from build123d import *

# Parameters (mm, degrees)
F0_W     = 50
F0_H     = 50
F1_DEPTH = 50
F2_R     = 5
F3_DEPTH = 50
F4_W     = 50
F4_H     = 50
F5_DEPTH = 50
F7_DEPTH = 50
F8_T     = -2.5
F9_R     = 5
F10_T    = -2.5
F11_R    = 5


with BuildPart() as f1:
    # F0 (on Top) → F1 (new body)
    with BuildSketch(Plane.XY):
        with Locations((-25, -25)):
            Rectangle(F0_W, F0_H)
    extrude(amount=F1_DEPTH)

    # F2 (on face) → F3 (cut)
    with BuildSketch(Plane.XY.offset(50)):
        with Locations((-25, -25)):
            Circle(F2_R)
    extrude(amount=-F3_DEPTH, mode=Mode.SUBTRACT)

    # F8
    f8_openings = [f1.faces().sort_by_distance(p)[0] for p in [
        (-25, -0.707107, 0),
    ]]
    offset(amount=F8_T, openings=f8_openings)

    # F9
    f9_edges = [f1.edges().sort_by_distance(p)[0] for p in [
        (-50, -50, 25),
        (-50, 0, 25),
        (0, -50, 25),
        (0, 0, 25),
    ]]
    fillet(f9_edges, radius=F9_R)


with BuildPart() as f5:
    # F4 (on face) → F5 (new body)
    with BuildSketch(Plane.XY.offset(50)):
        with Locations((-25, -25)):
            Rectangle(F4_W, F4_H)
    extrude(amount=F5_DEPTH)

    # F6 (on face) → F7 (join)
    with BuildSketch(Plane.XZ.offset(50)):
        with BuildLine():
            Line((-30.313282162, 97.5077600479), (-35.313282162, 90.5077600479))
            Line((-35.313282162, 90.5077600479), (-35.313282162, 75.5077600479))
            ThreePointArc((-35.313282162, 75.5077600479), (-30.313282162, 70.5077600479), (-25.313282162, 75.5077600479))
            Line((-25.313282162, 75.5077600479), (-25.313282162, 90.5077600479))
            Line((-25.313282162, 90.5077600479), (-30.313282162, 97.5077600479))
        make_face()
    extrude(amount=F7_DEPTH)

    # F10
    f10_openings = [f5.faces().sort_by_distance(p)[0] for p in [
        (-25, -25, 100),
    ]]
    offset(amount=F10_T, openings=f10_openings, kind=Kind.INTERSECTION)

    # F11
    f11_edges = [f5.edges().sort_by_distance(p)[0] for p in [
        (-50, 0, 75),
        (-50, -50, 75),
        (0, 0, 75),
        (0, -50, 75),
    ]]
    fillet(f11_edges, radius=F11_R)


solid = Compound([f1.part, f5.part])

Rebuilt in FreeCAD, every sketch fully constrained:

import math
import FreeCAD as App
import Part
import Sketcher
Q = App.Units.Quantity


def edges_at(feature, points):
    """Names of the edges that pass closest to the given points."""
    edges = feature.Shape.Edges
    near = lambda p: min(range(len(edges)), key=lambda i: edges[i].distToShape(Part.Vertex(*p))[0])
    return sorted({f"Edge{near(p) + 1}" for p in points})


def faces_at(feature, points):
    """Names of the faces that lie closest to the given points."""
    faces = feature.Shape.Faces
    near = lambda p: min(range(len(faces)), key=lambda i: faces[i].distToShape(Part.Vertex(*p))[0])
    return sorted({f"Face{near(p) + 1}" for p in points})


def add_polygon(sketch, points):
    """Adds a closed chain of lines whose ends are joined by coincident constraints."""
    first, n = sketch.GeometryCount, len(points)
    for a, b in zip(points, points[1:] + points[:1]):
        sketch.addGeometry(Part.LineSegment(App.Vector(*a, 0), App.Vector(*b, 0)), False)
    for i in range(n):
        sketch.addConstraint(Sketcher.Constraint("Coincident", first + i, 2, first + (i + 1) % n, 1))

doc = App.newDocument("Part")
body = doc.addObject("PartDesign::Body", "Body")

# Sketch on XY plane
sketch1 = doc.addObject("Sketcher::SketchObject", "Sketch")
body.addObject(sketch1)
sketch1.AttachmentSupport = (doc.XY_Plane, [""])
sketch1.MapMode = "FlatFace"
add_polygon(sketch1, [(-50, 0), (-50, -50), (0, -50), (0, 0)])  # lines 0-3
sketch1.addConstraint([
    Sketcher.Constraint("Vertical", 0),
    Sketcher.Constraint("Horizontal", 1),
    Sketcher.Constraint("Vertical", 2),
    Sketcher.Constraint("Horizontal", 3),
    Sketcher.Constraint("Coincident", 2, 2, -1, 1),
    Sketcher.Constraint("Equal", 3, 0),
    Sketcher.Constraint("DistanceX", 1, 1, 1, 2, Q("50 mm")),
])
pad1 = doc.addObject("PartDesign::Pad", "Pad")
body.addObject(pad1)
pad1.Profile = sketch1
pad1.Length = 50

# Sketch on XY plane
sketch2 = doc.addObject("Sketcher::SketchObject", "Sketch001")
body.addObject(sketch2)
sketch2.AttachmentSupport = (doc.XY_Plane, [""])
sketch2.MapMode = "FlatFace"
sketch2.AttachmentOffset = App.Placement(App.Vector(0, 0, 50), App.Rotation())
sketch2.addGeometry(Part.Circle(App.Vector(-25, -25, 0), App.Vector(0, 0, 1), 5), False)
sketch2.addConstraint([
    Sketcher.Constraint("Diameter", 0, Q("10 mm")),
    Sketcher.Constraint("DistanceX", 0, 3, -1, 1, Q("25 mm")),
    Sketcher.Constraint("DistanceY", 0, 3, -1, 1, Q("25 mm")),
])
pocket1 = doc.addObject("PartDesign::Pocket", "Pocket")
body.addObject(pocket1)
pocket1.Profile = sketch2
pocket1.Length = 50
doc.recompute()

thickness = doc.addObject("PartDesign::Thickness", "Thickness")
body.addObject(thickness)
thickness.Base = (pocket1, faces_at(pocket1, [(-35, -35, 0)]))
thickness.Value = 2.5
thickness.Reversed = True
thickness.Join = "Arc"
doc.recompute()

fillet = doc.addObject("PartDesign::Fillet", "Fillet")
body.addObject(fillet)
fillet.Base = (thickness, edges_at(thickness, [
    (-50, -50, 25),
    (-50, 0, 25),
    (0, -50, 25),
    (0, 0, 25),
]))
fillet.Radius = 5
body2 = doc.addObject("PartDesign::Body", "Body001")

# Sketch on XY plane
sketch3 = doc.addObject("Sketcher::SketchObject", "Sketch002")
body2.addObject(sketch3)
sketch3.AttachmentSupport = (doc.getObject("XY_Plane001"), [""])
sketch3.MapMode = "FlatFace"
sketch3.AttachmentOffset = App.Placement(App.Vector(0, 0, 50), App.Rotation())
add_polygon(sketch3, [(-50, 0), (-50, -50), (0, -50), (0, 0)])  # lines 0-3
sketch3.addConstraint([
    Sketcher.Constraint("Vertical", 0),
    Sketcher.Constraint("Horizontal", 1),
    Sketcher.Constraint("Vertical", 2),
    Sketcher.Constraint("Horizontal", 3),
    Sketcher.Constraint("Coincident", 2, 2, -1, 1),
    Sketcher.Constraint("Equal", 3, 0),
    Sketcher.Constraint("DistanceX", 1, 1, 1, 2, Q("50 mm")),
])
pad2 = doc.addObject("PartDesign::Pad", "Pad001")
body2.addObject(pad2)
pad2.Profile = sketch3
pad2.Length = 50

# Sketch on XZ plane
sketch4 = doc.addObject("Sketcher::SketchObject", "Sketch003")
body2.addObject(sketch4)
sketch4.AttachmentSupport = (doc.getObject("XZ_Plane001"), [""])
sketch4.MapMode = "FlatFace"
sketch4.AttachmentOffset = App.Placement(App.Vector(0, 0, 50), App.Rotation())
sketch4.addGeometry([
    Part.LineSegment(App.Vector(-30, 98, 0), App.Vector(-35, 91, 0)),  # 0
    Part.LineSegment(App.Vector(-35, 91, 0), App.Vector(-35, 76, 0)),  # 1
    Part.ArcOfCircle(Part.Circle(App.Vector(-30, 76, 0), App.Vector(0, 0, 1), 5), math.radians(180), math.radians(360)),  # 2
    Part.LineSegment(App.Vector(-25, 76, 0), App.Vector(-25, 91, 0)),  # 3
    Part.LineSegment(App.Vector(-25, 91, 0), App.Vector(-30, 98, 0)),  # 4
], False)
sketch4.addConstraint([
    Sketcher.Constraint("Coincident", 0, 2, 1, 1),
    Sketcher.Constraint("Tangent", 1, 2, 2, 1),
    Sketcher.Constraint("Tangent", 2, 2, 3, 1),
    Sketcher.Constraint("Coincident", 3, 2, 4, 1),
    Sketcher.Constraint("Coincident", 4, 2, 0, 1),
    Sketcher.Constraint("Vertical", 1),
    Sketcher.Constraint("Vertical", 3),
    Sketcher.Constraint("Horizontal", 0, 2, 3, 2),
    Sketcher.Constraint("Vertical", 2, 3, 4, 2),
    Sketcher.Constraint("Radius", 2, Q("5 mm")),
    Sketcher.Constraint("DistanceY", 1, 2, 1, 1, Q("15 mm")),
    Sketcher.Constraint("DistanceY", 0, 2, 4, 2, Q("7 mm")),
    Sketcher.Constraint("DistanceY", -1, 1, 2, 3, Q("75.50776 mm")),
    Sketcher.Constraint("DistanceX", 2, 3, -1, 1, Q("30.313282 mm")),
])
pad3 = doc.addObject("PartDesign::Pad", "Pad002")
body2.addObject(pad3)
pad3.Profile = sketch4
pad3.Length = 50
doc.recompute()

thickness2 = doc.addObject("PartDesign::Thickness", "Thickness001")
body2.addObject(thickness2)
thickness2.Base = (pad3, faces_at(pad3, [(-25, -25, 100)]))
thickness2.Value = 2.5
thickness2.Reversed = True
thickness2.Join = "Intersection"
doc.recompute()

fillet2 = doc.addObject("PartDesign::Fillet", "Fillet001")
body2.addObject(fillet2)
fillet2.Base = (thickness2, edges_at(thickness2, [
    (-50, 0, 75),
    (-50, -50, 75),
    (0, 0, 75),
    (0, -50, 75),
]))
fillet2.Radius = 5

doc.recompute()
